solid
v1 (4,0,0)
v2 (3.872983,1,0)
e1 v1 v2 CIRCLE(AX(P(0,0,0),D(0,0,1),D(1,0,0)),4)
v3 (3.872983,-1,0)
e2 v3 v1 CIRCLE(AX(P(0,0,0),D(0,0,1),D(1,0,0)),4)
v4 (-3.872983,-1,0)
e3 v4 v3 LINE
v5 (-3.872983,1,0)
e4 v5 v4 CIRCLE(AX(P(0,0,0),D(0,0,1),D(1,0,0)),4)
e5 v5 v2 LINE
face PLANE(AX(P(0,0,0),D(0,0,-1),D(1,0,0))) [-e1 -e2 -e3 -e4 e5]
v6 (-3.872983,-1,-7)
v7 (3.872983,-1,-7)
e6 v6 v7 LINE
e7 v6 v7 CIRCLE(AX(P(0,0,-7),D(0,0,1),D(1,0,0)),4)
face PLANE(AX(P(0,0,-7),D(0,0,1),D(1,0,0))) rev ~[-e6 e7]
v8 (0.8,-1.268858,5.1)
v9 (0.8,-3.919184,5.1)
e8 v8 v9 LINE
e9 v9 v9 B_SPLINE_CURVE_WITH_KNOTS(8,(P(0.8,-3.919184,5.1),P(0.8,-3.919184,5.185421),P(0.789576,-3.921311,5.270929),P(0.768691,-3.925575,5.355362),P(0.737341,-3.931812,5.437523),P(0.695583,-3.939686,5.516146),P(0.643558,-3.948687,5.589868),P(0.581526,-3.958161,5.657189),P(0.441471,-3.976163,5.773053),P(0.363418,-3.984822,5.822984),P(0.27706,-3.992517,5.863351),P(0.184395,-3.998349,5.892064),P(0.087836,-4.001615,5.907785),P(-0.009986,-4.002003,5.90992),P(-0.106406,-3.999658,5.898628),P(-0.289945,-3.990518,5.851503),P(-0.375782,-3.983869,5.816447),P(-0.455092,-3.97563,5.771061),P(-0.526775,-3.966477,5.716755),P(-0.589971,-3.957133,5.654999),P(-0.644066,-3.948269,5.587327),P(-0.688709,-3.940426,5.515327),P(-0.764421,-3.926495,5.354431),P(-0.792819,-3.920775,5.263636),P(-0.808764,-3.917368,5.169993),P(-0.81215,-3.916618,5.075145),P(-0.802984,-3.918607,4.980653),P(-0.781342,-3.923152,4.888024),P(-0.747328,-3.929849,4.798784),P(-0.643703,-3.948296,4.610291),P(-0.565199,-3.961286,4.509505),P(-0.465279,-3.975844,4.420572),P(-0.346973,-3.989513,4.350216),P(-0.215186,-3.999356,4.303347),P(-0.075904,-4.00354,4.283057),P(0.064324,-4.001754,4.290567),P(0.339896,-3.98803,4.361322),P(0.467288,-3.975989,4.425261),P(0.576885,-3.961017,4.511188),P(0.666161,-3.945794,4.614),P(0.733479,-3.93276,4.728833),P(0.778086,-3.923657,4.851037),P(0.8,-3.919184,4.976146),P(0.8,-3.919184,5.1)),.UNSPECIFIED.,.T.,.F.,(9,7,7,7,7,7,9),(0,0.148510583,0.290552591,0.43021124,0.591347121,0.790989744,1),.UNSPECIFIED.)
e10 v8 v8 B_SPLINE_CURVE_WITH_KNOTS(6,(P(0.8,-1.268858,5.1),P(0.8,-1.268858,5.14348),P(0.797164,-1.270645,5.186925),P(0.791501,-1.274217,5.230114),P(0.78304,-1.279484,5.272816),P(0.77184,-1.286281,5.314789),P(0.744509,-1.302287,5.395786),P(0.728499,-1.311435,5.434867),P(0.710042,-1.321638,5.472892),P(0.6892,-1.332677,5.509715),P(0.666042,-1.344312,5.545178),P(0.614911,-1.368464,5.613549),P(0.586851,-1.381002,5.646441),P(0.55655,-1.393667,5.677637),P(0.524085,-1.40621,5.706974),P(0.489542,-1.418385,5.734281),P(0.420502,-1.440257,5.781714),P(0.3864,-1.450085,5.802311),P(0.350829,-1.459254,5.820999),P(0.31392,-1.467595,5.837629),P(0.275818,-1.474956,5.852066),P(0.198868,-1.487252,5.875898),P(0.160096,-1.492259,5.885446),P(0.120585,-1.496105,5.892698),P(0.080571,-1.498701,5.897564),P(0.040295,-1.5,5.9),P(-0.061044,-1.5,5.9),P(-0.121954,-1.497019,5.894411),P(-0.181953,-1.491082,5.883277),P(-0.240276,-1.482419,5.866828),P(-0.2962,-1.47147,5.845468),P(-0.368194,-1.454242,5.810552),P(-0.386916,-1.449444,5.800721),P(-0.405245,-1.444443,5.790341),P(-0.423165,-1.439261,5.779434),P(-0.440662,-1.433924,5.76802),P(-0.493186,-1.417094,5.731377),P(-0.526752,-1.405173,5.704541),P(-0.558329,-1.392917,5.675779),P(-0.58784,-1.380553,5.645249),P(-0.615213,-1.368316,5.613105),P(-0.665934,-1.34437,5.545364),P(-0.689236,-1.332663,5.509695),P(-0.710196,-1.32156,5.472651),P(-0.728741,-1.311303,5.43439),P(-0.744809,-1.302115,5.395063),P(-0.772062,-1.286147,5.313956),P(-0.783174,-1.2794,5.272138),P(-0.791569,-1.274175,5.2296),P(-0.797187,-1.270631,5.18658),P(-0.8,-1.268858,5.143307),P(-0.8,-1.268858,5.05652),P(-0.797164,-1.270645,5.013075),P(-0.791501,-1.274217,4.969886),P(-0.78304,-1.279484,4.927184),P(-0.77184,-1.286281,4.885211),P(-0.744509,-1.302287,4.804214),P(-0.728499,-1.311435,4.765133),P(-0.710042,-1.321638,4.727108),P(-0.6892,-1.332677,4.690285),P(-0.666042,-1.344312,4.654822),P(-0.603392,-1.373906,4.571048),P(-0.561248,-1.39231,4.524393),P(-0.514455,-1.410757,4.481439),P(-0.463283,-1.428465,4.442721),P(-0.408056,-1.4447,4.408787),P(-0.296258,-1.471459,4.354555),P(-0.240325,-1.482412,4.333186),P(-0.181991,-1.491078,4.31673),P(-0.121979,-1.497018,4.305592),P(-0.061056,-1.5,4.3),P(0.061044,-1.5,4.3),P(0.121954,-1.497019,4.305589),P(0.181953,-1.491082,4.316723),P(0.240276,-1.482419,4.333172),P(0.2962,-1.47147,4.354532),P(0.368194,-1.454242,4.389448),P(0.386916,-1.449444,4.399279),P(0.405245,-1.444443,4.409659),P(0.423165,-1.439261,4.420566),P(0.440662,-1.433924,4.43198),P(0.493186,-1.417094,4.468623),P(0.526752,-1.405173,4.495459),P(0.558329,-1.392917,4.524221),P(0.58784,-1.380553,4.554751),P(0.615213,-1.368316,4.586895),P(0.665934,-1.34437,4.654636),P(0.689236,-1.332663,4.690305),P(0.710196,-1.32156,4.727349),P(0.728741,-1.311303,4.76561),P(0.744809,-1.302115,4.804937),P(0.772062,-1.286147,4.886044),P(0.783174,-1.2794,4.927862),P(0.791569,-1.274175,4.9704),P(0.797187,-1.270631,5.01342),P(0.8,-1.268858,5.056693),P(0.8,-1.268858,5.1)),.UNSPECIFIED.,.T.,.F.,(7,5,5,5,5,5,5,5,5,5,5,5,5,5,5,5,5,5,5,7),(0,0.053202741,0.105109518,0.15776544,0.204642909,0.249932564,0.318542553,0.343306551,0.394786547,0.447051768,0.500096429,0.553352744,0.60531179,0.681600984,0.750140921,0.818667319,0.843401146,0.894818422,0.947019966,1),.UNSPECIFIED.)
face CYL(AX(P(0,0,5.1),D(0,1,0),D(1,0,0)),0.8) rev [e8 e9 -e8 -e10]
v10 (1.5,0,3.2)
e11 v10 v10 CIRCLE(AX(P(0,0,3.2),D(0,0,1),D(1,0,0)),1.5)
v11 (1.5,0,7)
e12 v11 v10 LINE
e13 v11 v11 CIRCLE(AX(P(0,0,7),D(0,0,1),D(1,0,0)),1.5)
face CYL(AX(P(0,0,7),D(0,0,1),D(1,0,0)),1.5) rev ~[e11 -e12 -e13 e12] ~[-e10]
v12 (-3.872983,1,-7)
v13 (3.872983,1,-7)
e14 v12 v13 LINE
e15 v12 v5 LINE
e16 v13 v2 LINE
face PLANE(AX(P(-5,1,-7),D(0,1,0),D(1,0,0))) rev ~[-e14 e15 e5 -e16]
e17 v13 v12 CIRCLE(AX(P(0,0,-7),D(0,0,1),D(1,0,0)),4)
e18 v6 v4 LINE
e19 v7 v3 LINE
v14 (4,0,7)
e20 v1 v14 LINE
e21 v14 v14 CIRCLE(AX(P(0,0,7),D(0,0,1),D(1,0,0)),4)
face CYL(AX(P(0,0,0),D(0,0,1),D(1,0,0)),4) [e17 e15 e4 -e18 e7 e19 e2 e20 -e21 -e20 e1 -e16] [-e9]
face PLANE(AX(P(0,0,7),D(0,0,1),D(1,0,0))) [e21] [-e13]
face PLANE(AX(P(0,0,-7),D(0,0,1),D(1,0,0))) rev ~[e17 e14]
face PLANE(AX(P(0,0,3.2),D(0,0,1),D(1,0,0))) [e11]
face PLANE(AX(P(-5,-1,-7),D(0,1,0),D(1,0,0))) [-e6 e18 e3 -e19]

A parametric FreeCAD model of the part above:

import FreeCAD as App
import Part
import Sketcher
Q = App.Units.Quantity


def add_polygon(sketch, points):
    """Adds a closed chain of lines whose ends are joined by coincident constraints."""
    first, n = sketch.GeometryCount, len(points)
    for a, b in zip(points, points[1:] + points[:1]):
        sketch.addGeometry(Part.LineSegment(App.Vector(*a, 0), App.Vector(*b, 0)), False)
    for i in range(n):
        sketch.addConstraint(Sketcher.Constraint("Coincident", first + i, 2, first + (i + 1) % n, 1))

doc = App.newDocument("Part")
params = doc.addObject("Spreadsheet::Sheet", "Params")
for row, (alias, value) in enumerate([
    ("sketch1_diameter", "8 mm"),
    ("pad1_length", "14 mm"),
    ("sketch2_diameter", "3 mm"),
    ("pocket1_length", "3.8 mm"),
    ("sketch3_width", "10 mm"),
    ("sketch3_height", "2 mm"),
    ("pocket2_length", "7 mm"),
    ("sketch4_diameter", "1.6 mm"),
], start=1):
    params.set(f"A{row}", alias)
    params.set(f"B{row}", "=" + value)
    params.setAlias(f"B{row}", alias)

body = doc.addObject("PartDesign::Body", "Body")

# Sketch on XY plane
sketch1 = doc.addObject("Sketcher::SketchObject", "Sketch")
body.addObject(sketch1)
sketch1.AttachmentSupport = (doc.XY_Plane, [""])
sketch1.MapMode = "FlatFace"
sketch1.addGeometry(Part.Circle(App.Vector(0, 0, 0), App.Vector(0, 0, 1), 4), False)
sketch1.addConstraint(Sketcher.Constraint("Coincident", 0, 3, -1, 1))
sketch1.addConstraint(Sketcher.Constraint("Diameter", 0, Q("8 mm")))
sketch1.setExpression("Constraints[1]", "Params.sketch1_diameter")
pad1 = doc.addObject("PartDesign::Pad", "Pad")
body.addObject(pad1)
pad1.Profile = sketch1
pad1.setExpression("Length", "Params.pad1_length")
pad1.Midplane = True

# Sketch on XY plane
sketch2 = doc.addObject("Sketcher::SketchObject", "Sketch001")
body.addObject(sketch2)
sketch2.AttachmentSupport = (doc.XY_Plane, [""])
sketch2.MapMode = "FlatFace"
sketch2.AttachmentOffset = App.Placement(App.Vector(0, 0, 7), App.Rotation())
sketch2.addGeometry(Part.Circle(App.Vector(0, 0, 0), App.Vector(0, 0, 1), 1.5), False)
sketch2.addConstraint(Sketcher.Constraint("Coincident", 0, 3, -1, 1))
sketch2.addConstraint(Sketcher.Constraint("Diameter", 0, Q("3 mm")))
sketch2.setExpression("Constraints[1]", "Params.sketch2_diameter")
pocket1 = doc.addObject("PartDesign::Pocket", "Pocket")
body.addObject(pocket1)
pocket1.Profile = sketch2
pocket1.setExpression("Length", "Params.pocket1_length")

# Sketch on XY plane
sketch3 = doc.addObject("Sketcher::SketchObject", "Sketch002")
body.addObject(sketch3)
sketch3.AttachmentSupport = (doc.XY_Plane, [""])
sketch3.MapMode = "FlatFace"
sketch3.AttachmentOffset = App.Placement(App.Vector(0, 0, -7), App.Rotation())
add_polygon(sketch3, [(-5, -1), (-5, 1), (5, 1), (5, -1)])  # lines 0-3
sketch3.addConstraint(Sketcher.Constraint("Vertical", 0))
sketch3.addConstraint(Sketcher.Constraint("Horizontal", 1))
sketch3.addConstraint(Sketcher.Constraint("Vertical", 2))
sketch3.addConstraint(Sketcher.Constraint("Horizontal", 3))
sketch3.addConstraint(Sketcher.Constraint("Symmetric", 0, 2, 2, 2, -1, 1))
sketch3.addConstraint(Sketcher.Constraint("DistanceX", 1, 1, 1, 2, Q("10 mm")))
sketch3.addConstraint(Sketcher.Constraint("DistanceY", 0, 1, 0, 2, Q("2 mm")))
sketch3.setExpression("Constraints[9]", "Params.sketch3_width")
sketch3.setExpression("Constraints[10]", "Params.sketch3_height")
pocket2 = doc.addObject("PartDesign::Pocket", "Pocket001")
body.addObject(pocket2)
pocket2.Profile = sketch3
pocket2.setExpression("Length", "Params.pocket2_length")
pocket2.Reversed = True

# Sketch on XZ plane
sketch4 = doc.addObject("Sketcher::SketchObject", "Sketch003")
body.addObject(sketch4)
sketch4.AttachmentSupport = (doc.XZ_Plane, [""])
sketch4.MapMode = "FlatFace"
sketch4.addGeometry(Part.Circle(App.Vector(0, 5.1, 0), App.Vector(0, 0, 1), 0.8), False)
sketch4.addConstraint(Sketcher.Constraint("PointOnObject", 0, 3, -2))
sketch4.addConstraint(Sketcher.Constraint("Diameter", 0, Q("1.6 mm")))
sketch4.addConstraint(Sketcher.Constraint("DistanceY", -1, 1, 0, 3, Q("5.1 mm")))
sketch4.setExpression("Constraints[1]", "Params.sketch4_diameter")
pocket3 = doc.addObject("PartDesign::Pocket", "Pocket002")
body.addObject(pocket3)
pocket3.Profile = sketch4
pocket3.Type = "ThroughAll"
pocket3.Reversed = True

doc.recompute()
